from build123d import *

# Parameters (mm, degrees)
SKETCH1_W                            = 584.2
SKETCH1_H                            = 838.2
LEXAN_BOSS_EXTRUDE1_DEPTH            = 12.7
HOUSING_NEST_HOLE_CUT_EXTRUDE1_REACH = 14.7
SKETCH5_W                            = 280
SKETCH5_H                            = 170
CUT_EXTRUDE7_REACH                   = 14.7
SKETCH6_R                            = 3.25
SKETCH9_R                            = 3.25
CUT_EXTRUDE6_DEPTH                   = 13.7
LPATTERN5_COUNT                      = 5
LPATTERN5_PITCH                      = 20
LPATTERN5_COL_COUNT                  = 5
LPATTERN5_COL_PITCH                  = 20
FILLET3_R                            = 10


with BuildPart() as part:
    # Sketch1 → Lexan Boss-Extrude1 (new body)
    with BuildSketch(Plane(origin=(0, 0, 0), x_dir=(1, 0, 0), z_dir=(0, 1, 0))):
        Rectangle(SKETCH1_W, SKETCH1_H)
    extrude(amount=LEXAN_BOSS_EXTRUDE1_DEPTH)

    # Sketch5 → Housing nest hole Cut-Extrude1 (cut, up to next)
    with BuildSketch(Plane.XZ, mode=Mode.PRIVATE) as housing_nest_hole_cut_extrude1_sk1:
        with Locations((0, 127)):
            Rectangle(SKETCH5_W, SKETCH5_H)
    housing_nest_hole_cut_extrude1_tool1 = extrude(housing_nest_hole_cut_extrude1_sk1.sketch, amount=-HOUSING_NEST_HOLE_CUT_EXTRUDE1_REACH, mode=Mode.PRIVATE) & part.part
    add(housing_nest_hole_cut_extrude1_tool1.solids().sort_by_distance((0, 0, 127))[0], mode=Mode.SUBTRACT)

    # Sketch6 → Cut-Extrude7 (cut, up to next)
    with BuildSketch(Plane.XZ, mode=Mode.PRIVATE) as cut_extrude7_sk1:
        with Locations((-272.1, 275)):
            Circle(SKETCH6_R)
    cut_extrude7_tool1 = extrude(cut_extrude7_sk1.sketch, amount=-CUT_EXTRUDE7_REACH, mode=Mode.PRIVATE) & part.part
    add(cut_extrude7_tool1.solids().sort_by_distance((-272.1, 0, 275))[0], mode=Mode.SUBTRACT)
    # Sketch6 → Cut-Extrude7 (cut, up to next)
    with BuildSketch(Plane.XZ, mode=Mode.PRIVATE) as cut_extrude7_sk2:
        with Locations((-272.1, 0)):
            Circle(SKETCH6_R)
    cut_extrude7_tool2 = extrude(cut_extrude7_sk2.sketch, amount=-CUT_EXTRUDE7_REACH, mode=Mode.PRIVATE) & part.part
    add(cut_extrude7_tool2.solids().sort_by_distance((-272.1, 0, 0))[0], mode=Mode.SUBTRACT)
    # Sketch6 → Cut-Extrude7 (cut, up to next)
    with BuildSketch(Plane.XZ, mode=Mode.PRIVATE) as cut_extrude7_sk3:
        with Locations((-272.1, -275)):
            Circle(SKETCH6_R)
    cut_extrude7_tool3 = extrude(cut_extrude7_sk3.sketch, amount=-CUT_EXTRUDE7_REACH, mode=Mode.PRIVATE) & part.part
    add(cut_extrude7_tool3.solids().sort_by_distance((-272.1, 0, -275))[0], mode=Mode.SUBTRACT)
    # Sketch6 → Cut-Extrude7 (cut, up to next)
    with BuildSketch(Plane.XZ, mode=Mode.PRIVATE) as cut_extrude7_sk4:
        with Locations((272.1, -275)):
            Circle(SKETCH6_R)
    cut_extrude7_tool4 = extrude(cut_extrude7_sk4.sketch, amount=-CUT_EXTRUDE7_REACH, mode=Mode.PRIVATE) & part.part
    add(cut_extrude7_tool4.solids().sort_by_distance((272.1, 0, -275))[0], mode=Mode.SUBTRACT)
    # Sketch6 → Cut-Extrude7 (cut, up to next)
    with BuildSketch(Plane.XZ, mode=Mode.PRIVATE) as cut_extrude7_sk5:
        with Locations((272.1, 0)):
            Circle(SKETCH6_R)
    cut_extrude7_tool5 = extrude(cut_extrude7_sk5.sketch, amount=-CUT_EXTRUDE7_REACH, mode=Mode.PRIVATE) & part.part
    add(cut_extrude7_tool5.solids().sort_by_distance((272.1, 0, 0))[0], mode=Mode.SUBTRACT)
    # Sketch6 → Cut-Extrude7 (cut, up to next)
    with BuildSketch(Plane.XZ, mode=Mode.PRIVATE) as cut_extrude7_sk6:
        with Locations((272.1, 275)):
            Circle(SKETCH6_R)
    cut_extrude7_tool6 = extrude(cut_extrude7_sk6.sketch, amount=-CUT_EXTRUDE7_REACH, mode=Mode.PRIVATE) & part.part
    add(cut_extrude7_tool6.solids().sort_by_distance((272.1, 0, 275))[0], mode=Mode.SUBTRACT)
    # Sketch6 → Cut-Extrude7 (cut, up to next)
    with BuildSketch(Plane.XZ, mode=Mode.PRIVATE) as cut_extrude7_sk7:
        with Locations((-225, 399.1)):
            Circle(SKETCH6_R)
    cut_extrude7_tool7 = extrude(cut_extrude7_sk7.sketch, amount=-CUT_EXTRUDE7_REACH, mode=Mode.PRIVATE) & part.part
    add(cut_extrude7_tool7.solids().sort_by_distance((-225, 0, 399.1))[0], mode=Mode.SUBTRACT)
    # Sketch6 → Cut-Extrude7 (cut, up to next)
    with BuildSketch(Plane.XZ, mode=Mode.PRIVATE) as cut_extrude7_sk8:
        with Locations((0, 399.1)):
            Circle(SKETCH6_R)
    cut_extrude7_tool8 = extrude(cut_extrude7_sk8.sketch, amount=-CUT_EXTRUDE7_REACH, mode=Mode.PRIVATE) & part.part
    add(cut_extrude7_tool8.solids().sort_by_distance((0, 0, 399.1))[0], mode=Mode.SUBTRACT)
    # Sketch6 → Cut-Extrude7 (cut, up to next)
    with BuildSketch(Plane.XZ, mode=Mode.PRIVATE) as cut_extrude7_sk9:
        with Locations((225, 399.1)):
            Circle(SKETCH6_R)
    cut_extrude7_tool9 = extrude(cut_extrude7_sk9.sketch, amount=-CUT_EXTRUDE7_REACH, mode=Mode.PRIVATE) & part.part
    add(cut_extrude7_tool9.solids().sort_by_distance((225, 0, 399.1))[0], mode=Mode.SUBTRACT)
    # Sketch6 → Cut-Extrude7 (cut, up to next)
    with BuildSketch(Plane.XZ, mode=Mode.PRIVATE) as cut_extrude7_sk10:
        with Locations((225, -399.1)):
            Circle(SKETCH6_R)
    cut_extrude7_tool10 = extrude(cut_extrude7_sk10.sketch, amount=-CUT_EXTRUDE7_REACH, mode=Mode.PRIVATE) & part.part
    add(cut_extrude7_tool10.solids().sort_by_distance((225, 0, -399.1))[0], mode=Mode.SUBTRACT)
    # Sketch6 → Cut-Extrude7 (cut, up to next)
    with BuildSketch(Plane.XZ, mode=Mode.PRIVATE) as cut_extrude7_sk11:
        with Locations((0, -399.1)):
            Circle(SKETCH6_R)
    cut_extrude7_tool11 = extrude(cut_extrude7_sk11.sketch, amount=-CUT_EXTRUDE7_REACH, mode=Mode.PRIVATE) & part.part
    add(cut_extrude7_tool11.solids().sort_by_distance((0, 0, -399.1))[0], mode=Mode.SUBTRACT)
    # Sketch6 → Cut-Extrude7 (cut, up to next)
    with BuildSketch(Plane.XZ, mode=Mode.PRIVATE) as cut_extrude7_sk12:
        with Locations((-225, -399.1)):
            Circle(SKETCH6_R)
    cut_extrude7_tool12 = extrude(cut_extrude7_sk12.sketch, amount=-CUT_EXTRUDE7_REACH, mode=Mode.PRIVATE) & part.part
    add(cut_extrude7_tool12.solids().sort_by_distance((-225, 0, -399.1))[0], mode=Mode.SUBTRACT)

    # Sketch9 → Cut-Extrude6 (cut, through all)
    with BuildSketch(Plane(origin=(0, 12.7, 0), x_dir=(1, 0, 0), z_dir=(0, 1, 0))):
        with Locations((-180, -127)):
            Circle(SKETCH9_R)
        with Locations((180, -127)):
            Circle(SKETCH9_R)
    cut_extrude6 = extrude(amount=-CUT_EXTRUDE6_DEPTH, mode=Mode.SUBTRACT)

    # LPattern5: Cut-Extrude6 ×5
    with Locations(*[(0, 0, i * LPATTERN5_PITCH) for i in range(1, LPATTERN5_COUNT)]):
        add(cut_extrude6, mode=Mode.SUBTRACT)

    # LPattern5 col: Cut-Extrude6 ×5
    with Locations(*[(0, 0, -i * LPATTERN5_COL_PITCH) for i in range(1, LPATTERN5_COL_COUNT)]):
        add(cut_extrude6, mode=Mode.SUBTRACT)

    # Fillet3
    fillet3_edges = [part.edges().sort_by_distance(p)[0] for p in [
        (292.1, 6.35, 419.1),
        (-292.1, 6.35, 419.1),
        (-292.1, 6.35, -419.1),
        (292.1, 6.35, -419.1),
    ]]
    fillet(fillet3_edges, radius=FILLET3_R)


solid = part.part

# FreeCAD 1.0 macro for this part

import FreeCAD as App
import Part
import Sketcher

V = App.Vector


def edges_at(feature, points):
    """Names of the edges that pass closest to the given points."""
    edges = feature.Shape.Edges
    near = lambda p: min(range(len(edges)), key=lambda i: edges[i].distToShape(Part.Vertex(*p))[0])
    return sorted({f"Edge{near(p) + 1}" for p in points})


def add_polygon(sketch, points):
    """Adds a closed chain of lines whose ends are joined by coincident constraints."""
    first, n = sketch.GeometryCount, len(points)
    for a, b in zip(points, points[1:] + points[:1]):
        sketch.addGeometry(Part.LineSegment(App.Vector(*a, 0), App.Vector(*b, 0)), False)
    for i in range(n):
        sketch.addConstraint(Sketcher.Constraint("Coincident", first + i, 2, first + (i + 1) % n, 1))

doc = App.newDocument("Part")
body = doc.addObject("PartDesign::Body", "Body")

sketch1 = body.newObject("Sketcher::SketchObject", "Sketch")
sketch1.AttachmentSupport = (doc.getObject("XZ_Plane"), [""])
sketch1.MapMode = "FlatFace"
add_polygon(sketch1, [(-292, -419), (-292, 419), (292, 419), (292, -419)])
sketch1.addConstraint(Sketcher.Constraint("Vertical", 0))
sketch1.addConstraint(Sketcher.Constraint("Horizontal", 1))
sketch1.addConstraint(Sketcher.Constraint("Vertical", 2))
sketch1.addConstraint(Sketcher.Constraint("Horizontal", 3))
sketch1.addConstraint(Sketcher.Constraint("Symmetric", 0, 2, 2, 2, -1, 1))
sketch1.addConstraint(Sketcher.Constraint("DistanceX", 1, 1, 1, 2, 584.2))
sketch1.addConstraint(Sketcher.Constraint("DistanceY", 0, 1, 0, 2, 838.2))
pad1 = body.newObject("PartDesign::Pad", "Pad")
pad1.Profile = sketch1
pad1.Length = 12.7
pad1.Reversed = True

sketch2 = body.newObject("Sketcher::SketchObject", "Sketch001")
sketch2.AttachmentSupport = (doc.getObject("XZ_Plane"), [""])
sketch2.MapMode = "FlatFace"
add_polygon(sketch2, [(-140, 212), (-140, 42), (140, 42), (140, 212)])
sketch2.addConstraint(Sketcher.Constraint("Vertical", 0))
sketch2.addConstraint(Sketcher.Constraint("Horizontal", 1))
sketch2.addConstraint(Sketcher.Constraint("Vertical", 2))
sketch2.addConstraint(Sketcher.Constraint("Horizontal", 3))
sketch2.addConstraint(Sketcher.Constraint("DistanceX", 1, 1, 1, 2, 280.0))
sketch2.addConstraint(Sketcher.Constraint("DistanceY", 0, 2, 0, 1, 170.0))
sketch2.addConstraint(Sketcher.Constraint("DistanceX", 0, 2, -1, 1, 140.0))
sketch2.addConstraint(Sketcher.Constraint("DistanceY", -1, 1, 0, 2, 42.0))
pocket1 = body.newObject("PartDesign::Pocket", "Pocket")
pocket1.Profile = sketch2
pocket1.Type = "UpToFirst"

sketch3 = body.newObject("Sketcher::SketchObject", "Sketch002")
sketch3.AttachmentSupport = (doc.getObject("XZ_Plane"), [""])
sketch3.MapMode = "FlatFace"
sketch3.addGeometry(Part.Circle(V(-272.1, 275, 0), V(0, 0, 1), 3.2), False)
sketch3.addConstraint(Sketcher.Constraint("Diameter", 0, 6.5))
sketch3.addConstraint(Sketcher.Constraint("DistanceY", -1, 1, 0, 3, 275.0))
sketch3.addConstraint(Sketcher.Constraint("DistanceX", 0, 3, -1, 1, 272.1))
pocket2 = body.newObject("PartDesign::Pocket", "Pocket001")
pocket2.Profile = sketch3
pocket2.Type = "UpToFirst"

sketch4 = body.newObject("Sketcher::SketchObject", "Sketch003")
sketch4.AttachmentSupport = (doc.getObject("XZ_Plane"), [""])
sketch4.MapMode = "FlatFace"
sketch4.addGeometry(Part.Circle(V(-272.1, 0, 0), V(0, 0, 1), 3.2), False)
sketch4.addConstraint(Sketcher.Constraint("PointOnObject", 0, 3, -1))
sketch4.addConstraint(Sketcher.Constraint("Diameter", 0, 6.5))
sketch4.addConstraint(Sketcher.Constraint("DistanceX", 0, 3, -1, 1, 272.1))
pocket3 = body.newObject("PartDesign::Pocket", "Pocket002")
pocket3.Profile = sketch4
pocket3.Type = "UpToFirst"

sketch5 = body.newObject("Sketcher::SketchObject", "Sketch004")
sketch5.AttachmentSupport = (doc.getObject("XZ_Plane"), [""])
sketch5.MapMode = "FlatFace"
sketch5.addGeometry(Part.Circle(V(-272.1, -275, 0), V(0, 0, 1), 3.2), False)
sketch5.addConstraint(Sketcher.Constraint("Diameter", 0, 6.5))
sketch5.addConstraint(Sketcher.Constraint("DistanceY", 0, 3, -1, 1, 275.0))
sketch5.addConstraint(Sketcher.Constraint("DistanceX", 0, 3, -1, 1, 272.1))
pocket4 = body.newObject("PartDesign::Pocket", "Pocket003")
pocket4.Profile = sketch5
pocket4.Type = "UpToFirst"

sketch6 = body.newObject("Sketcher::SketchObject", "Sketch005")
sketch6.AttachmentSupport = (doc.getObject("XZ_Plane"), [""])
sketch6.MapMode = "FlatFace"
sketch6.addGeometry(Part.Circle(V(272.1, -275, 0), V(0, 0, 1), 3.2), False)
sketch6.addConstraint(Sketcher.Constraint("Diameter", 0, 6.5))
sketch6.addConstraint(Sketcher.Constraint("DistanceY", 0, 3, -1, 1, 275.0))
sketch6.addConstraint(Sketcher.Constraint("DistanceX", -1, 1, 0, 3, 272.1))
pocket5 = body.newObject("PartDesign::Pocket", "Pocket004")
pocket5.Profile = sketch6
pocket5.Type = "UpToFirst"

sketch7 = body.newObject("Sketcher::SketchObject", "Sketch006")
sketch7.AttachmentSupport = (doc.getObject("XZ_Plane"), [""])
sketch7.MapMode = "FlatFace"
sketch7.addGeometry(Part.Circle(V(272.1, 0, 0), V(0, 0, 1), 3.2), False)
sketch7.addConstraint(Sketcher.Constraint("PointOnObject", 0, 3, -1))
sketch7.addConstraint(Sketcher.Constraint("Diameter", 0, 6.5))
sketch7.addConstraint(Sketcher.Constraint("DistanceX", -1, 1, 0, 3, 272.1))
pocket6 = body.newObject("PartDesign::Pocket", "Pocket005")
pocket6.Profile = sketch7
pocket6.Type = "UpToFirst"

sketch8 = body.newObject("Sketcher::SketchObject", "Sketch007")
sketch8.AttachmentSupport = (doc.getObject("XZ_Plane"), [""])
sketch8.MapMode = "FlatFace"
sketch8.addGeometry(Part.Circle(V(272.1, 275, 0), V(0, 0, 1), 3.2), False)
sketch8.addConstraint(Sketcher.Constraint("Diameter", 0, 6.5))
sketch8.addConstraint(Sketcher.Constraint("DistanceY", -1, 1, 0, 3, 275.0))
sketch8.addConstraint(Sketcher.Constraint("DistanceX", -1, 1, 0, 3, 272.1))
pocket7 = body.newObject("PartDesign::Pocket", "Pocket006")
pocket7.Profile = sketch8
pocket7.Type = "UpToFirst"

sketch9 = body.newObject("Sketcher::SketchObject", "Sketch008")
sketch9.AttachmentSupport = (doc.getObject("XZ_Plane"), [""])
sketch9.MapMode = "FlatFace"
sketch9.addGeometry(Part.Circle(V(-225, 399.1, 0), V(0, 0, 1), 3.2), False)
sketch9.addConstraint(Sketcher.Constraint("Diameter", 0, 6.5))
sketch9.addConstraint(Sketcher.Constraint("DistanceX", 0, 3, -1, 1, 225.0))
sketch9.addConstraint(Sketcher.Constraint("DistanceY", -1, 1, 0, 3, 399.1))
pocket8 = body.newObject("PartDesign::Pocket", "Pocket007")
pocket8.Profile = sketch9
pocket8.Type = "UpToFirst"

sketch10 = body.newObject("Sketcher::SketchObject", "Sketch009")
sketch10.AttachmentSupport = (doc.getObject("XZ_Plane"), [""])
sketch10.MapMode = "FlatFace"
sketch10.addGeometry(Part.Circle(V(0, 399.1, 0), V(0, 0, 1), 3.2), False)
sketch10.addConstraint(Sketcher.Constraint("PointOnObject", 0, 3, -2))
sketch10.addConstraint(Sketcher.Constraint("Diameter", 0, 6.5))
sketch10.addConstraint(Sketcher.Constraint("DistanceY", -1, 1, 0, 3, 399.1))
pocket9 = body.newObject("PartDesign::Pocket", "Pocket008")
pocket9.Profile = sketch10
pocket9.Type = "UpToFirst"

sketch11 = body.newObject("Sketcher::SketchObject", "Sketch010")
sketch11.AttachmentSupport = (doc.getObject("XZ_Plane"), [""])
sketch11.MapMode = "FlatFace"
sketch11.addGeometry(Part.Circle(V(225, 399.1, 0), V(0, 0, 1), 3.2), False)
sketch11.addConstraint(Sketcher.Constraint("Diameter", 0, 6.5))
sketch11.addConstraint(Sketcher.Constraint("DistanceX", -1, 1, 0, 3, 225.0))
sketch11.addConstraint(Sketcher.Constraint("DistanceY", -1, 1, 0, 3, 399.1))
pocket10 = body.newObject("PartDesign::Pocket", "Pocket009")
pocket10.Profile = sketch11
pocket10.Type = "UpToFirst"

sketch12 = body.newObject("Sketcher::SketchObject", "Sketch011")
sketch12.AttachmentSupport = (doc.getObject("XZ_Plane"), [""])
sketch12.MapMode = "FlatFace"
sketch12.addGeometry(Part.Circle(V(225, -399.1, 0), V(0, 0, 1), 3.2), False)
sketch12.addConstraint(Sketcher.Constraint("Diameter", 0, 6.5))
sketch12.addConstraint(Sketcher.Constraint("DistanceX", -1, 1, 0, 3, 225.0))
sketch12.addConstraint(Sketcher.Constraint("DistanceY", 0, 3, -1, 1, 399.1))
pocket11 = body.newObject("PartDesign::Pocket", "Pocket010")
pocket11.Profile = sketch12
pocket11.Type = "UpToFirst"

sketch13 = body.newObject("Sketcher::SketchObject", "Sketch012")
sketch13.AttachmentSupport = (doc.getObject("XZ_Plane"), [""])
sketch13.MapMode = "FlatFace"
sketch13.addGeometry(Part.Circle(V(0, -399.1, 0), V(0, 0, 1), 3.2), False)
sketch13.addConstraint(Sketcher.Constraint("PointOnObject", 0, 3, -2))
sketch13.addConstraint(Sketcher.Constraint("Diameter", 0, 6.5))
sketch13.addConstraint(Sketcher.Constraint("DistanceY", 0, 3, -1, 1, 399.1))
pocket12 = body.newObject("PartDesign::Pocket", "Pocket011")
pocket12.Profile = sketch13
pocket12.Type = "UpToFirst"

sketch14 = body.newObject("Sketcher::SketchObject", "Sketch013")
sketch14.AttachmentSupport = (doc.getObject("XZ_Plane"), [""])
sketch14.MapMode = "FlatFace"
sketch14.addGeometry(Part.Circle(V(-225, -399.1, 0), V(0, 0, 1), 3.2), False)
sketch14.addConstraint(Sketcher.Constraint("Diameter", 0, 6.5))
sketch14.addConstraint(Sketcher.Constraint("DistanceX", 0, 3, -1, 1, 225.0))
sketch14.addConstraint(Sketcher.Constraint("DistanceY", 0, 3, -1, 1, 399.1))
pocket13 = body.newObject("PartDesign::Pocket", "Pocket012")
pocket13.Profile = sketch14
pocket13.Type = "UpToFirst"

sketch15 = body.newObject("Sketcher::SketchObject", "Sketch014")
sketch15.AttachmentSupport = (doc.getObject("XZ_Plane"), [""])
sketch15.MapMode = "FlatFace"
sketch15.AttachmentOffset = App.Placement(V(0, 0, -12.7), App.Rotation())
sketch15.addGeometry(Part.Circle(V(-180, 127, 0), V(0, 0, 1), 3.2), False)
sketch15.addGeometry(Part.Circle(V(180, 127, 0), V(0, 0, 1), 3.2), False)
sketch15.addConstraint(Sketcher.Constraint("Equal", 0, 1))
sketch15.addConstraint(Sketcher.Constraint("Symmetric", 0, 3, 1, 3, -2))
sketch15.addConstraint(Sketcher.Constraint("Diameter", 0, 6.5))
sketch15.addConstraint(Sketcher.Constraint("DistanceX", 0, 3, -1, 1, 180.0))
sketch15.addConstraint(Sketcher.Constraint("DistanceY", -1, 1, 0, 3, 127.0))
pocket14 = body.newObject("PartDesign::Pocket", "Pocket013")
pocket14.Profile = sketch15
pocket14.Type = "ThroughAll"
pocket14.Reversed = True
doc.recompute()

linearpattern = body.newObject("PartDesign::LinearPattern", "LinearPattern")
linearpattern.Originals = [pocket14]
linearpattern.Direction = (doc.getObject("Z_Axis"), [""])
linearpattern.Mode = "offset"
linearpattern.Offset = 20
linearpattern.Occurrences = 5
body.Tip = linearpattern
doc.recompute()

linearpattern2 = body.newObject("PartDesign::LinearPattern", "LinearPattern001")
linearpattern2.Originals = [pocket14]
linearpattern2.Direction = (doc.getObject("Z_Axis"), [""])
linearpattern2.Mode = "offset"
linearpattern2.Offset = 20
linearpattern2.Occurrences = 5
linearpattern2.Reversed = True
body.Tip = linearpattern2
doc.recompute()

fillet = body.newObject("PartDesign::Fillet", "Fillet")
fillet.Base = (linearpattern2, edges_at(linearpattern2, [
    (292.1, 6.35, 419.1),
    (-292.1, 6.35, 419.1),
    (-292.1, 6.35, -419.1),
    (292.1, 6.35, -419.1),
]))
fillet.Radius = 10

doc.recompute()
